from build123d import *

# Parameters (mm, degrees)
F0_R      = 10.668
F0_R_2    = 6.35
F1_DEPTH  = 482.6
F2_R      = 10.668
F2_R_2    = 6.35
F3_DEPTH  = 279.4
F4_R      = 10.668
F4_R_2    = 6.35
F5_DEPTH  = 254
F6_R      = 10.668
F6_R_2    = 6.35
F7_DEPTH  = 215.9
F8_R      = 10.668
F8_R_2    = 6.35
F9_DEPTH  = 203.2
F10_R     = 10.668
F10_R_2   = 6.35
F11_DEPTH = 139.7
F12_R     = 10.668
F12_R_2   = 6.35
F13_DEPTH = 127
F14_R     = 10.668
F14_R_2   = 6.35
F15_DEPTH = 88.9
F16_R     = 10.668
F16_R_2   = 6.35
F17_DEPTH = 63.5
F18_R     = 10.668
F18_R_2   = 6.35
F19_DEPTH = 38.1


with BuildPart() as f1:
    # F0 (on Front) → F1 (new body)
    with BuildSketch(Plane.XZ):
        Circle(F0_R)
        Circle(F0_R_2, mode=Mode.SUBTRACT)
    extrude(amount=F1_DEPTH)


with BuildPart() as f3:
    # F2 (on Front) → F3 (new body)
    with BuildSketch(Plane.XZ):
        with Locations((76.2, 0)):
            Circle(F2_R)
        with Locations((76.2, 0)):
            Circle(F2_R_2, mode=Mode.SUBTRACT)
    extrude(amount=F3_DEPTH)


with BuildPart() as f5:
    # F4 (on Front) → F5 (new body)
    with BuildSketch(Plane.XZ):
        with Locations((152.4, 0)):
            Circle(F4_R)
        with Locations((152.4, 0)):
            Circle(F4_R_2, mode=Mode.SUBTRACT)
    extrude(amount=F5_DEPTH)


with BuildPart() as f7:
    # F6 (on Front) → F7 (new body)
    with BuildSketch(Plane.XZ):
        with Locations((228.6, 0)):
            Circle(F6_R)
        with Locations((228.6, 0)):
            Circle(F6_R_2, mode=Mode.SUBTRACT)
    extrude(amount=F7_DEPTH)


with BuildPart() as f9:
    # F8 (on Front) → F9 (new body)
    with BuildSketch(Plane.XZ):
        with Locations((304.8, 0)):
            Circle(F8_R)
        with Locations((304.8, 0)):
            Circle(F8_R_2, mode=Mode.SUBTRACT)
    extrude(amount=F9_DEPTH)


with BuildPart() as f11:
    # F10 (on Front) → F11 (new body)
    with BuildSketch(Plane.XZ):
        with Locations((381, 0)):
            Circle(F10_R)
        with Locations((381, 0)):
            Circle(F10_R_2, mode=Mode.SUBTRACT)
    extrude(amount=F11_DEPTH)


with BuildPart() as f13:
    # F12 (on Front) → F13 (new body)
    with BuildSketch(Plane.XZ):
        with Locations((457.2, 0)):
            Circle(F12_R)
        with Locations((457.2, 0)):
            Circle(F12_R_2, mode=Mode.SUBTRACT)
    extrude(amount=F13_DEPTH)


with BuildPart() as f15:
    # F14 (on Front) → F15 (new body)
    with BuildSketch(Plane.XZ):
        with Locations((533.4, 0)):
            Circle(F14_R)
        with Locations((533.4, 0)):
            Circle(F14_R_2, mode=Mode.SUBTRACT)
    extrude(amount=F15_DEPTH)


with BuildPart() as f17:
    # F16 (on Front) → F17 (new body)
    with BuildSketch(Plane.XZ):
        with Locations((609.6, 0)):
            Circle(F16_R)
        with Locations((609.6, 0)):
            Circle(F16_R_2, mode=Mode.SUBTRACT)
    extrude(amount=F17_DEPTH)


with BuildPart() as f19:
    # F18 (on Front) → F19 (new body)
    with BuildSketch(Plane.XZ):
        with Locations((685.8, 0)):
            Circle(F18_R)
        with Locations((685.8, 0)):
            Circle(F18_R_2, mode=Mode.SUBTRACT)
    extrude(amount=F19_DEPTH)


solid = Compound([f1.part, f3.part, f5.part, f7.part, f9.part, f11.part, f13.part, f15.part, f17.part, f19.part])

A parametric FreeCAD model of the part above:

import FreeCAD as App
import Part
import Sketcher
from FreeCAD import Vector
Q = App.Units.Quantity

doc = App.newDocument("Part")
params = doc.addObject("Spreadsheet::Sheet", "Params")
for row, (alias, value) in enumerate([
    ("sketch1_diameter", "0.5 in"),
    ("sketch1_diameter2", "0.84 in"),
    ("pad1_length", "19 in"),
    ("sketch2_diameter", "0.5 in"),
    ("sketch2_diameter2", "0.84 in"),
    ("pad2_length", "11 in"),
    ("sketch3_diameter", "0.5 in"),
    ("sketch3_diameter2", "0.84 in"),
    ("pad3_length", "10 in"),
    ("sketch4_diameter", "0.5 in"),
    ("sketch4_diameter2", "0.84 in"),
    ("pad4_length", "8.5 in"),
    ("sketch5_diameter", "0.5 in"),
    ("sketch5_diameter2", "0.84 in"),
    ("pad5_length", "8 in"),
    ("sketch6_diameter", "0.5 in"),
    ("sketch6_diameter2", "0.84 in"),
    ("pad6_length", "5.5 in"),
    ("sketch7_diameter", "0.5 in"),
    ("sketch7_diameter2", "0.84 in"),
    ("pad7_length", "5 in"),
    ("sketch8_diameter", "0.5 in"),
    ("sketch8_diameter2", "0.84 in"),
    ("pad8_length", "3.5 in"),
    ("sketch9_diameter", "0.5 in"),
    ("sketch9_diameter2", "0.84 in"),
    ("pad9_length", "2.5 in"),
    ("sketch10_diameter", "0.5 in"),
    ("sketch10_diameter2", "0.84 in"),
    ("pad10_length", "1.5 in"),
], start=1):
    params.set(f"A{row}", alias)
    params.set(f"B{row}", "=" + value)
    params.setAlias(f"B{row}", alias)

body = doc.addObject("PartDesign::Body", "Body")

# Sketch on XZ plane
sketch1 = doc.addObject("Sketcher::SketchObject", "Sketch")
body.addObject(sketch1)
sketch1.AttachmentSupport = (doc.XZ_Plane, [""])
sketch1.MapMode = "FlatFace"
sketch1.addGeometry([
    Part.Circle(Vector(0, 0, 0), Vector(0, 0, 1), 11),
    Part.Circle(Vector(0, 0, 0), Vector(0, 0, 1), 6),
], False)
sketch1.addConstraint([
    Sketcher.Constraint("Coincident", 0, 3, -1, 1),
    Sketcher.Constraint("Coincident", 1, 3, -1, 1),
    Sketcher.Constraint("Diameter", 1, Q("0.5 in")),
    Sketcher.Constraint("Diameter", 0, Q("0.84 in")),
])
sketch1.setExpression("Constraints[2]", "Params.sketch1_diameter")
sketch1.setExpression("Constraints[3]", "Params.sketch1_diameter2")
pad1 = doc.addObject("PartDesign::Pad", "Pad")
body.addObject(pad1)
pad1.Profile = sketch1
pad1.setExpression("Length", "Params.pad1_length")
body2 = doc.addObject("PartDesign::Body", "Body001")

# Sketch on XZ plane
sketch2 = doc.addObject("Sketcher::SketchObject", "Sketch001")
body2.addObject(sketch2)
sketch2.AttachmentSupport = (doc.getObject("XZ_Plane001"), [""])
sketch2.MapMode = "FlatFace"
sketch2.addGeometry([
    Part.Circle(Vector(76, 0, 0), Vector(0, 0, 1), 11),
    Part.Circle(Vector(76, 0, 0), Vector(0, 0, 1), 6),
], False)
sketch2.addConstraint([
    Sketcher.Constraint("Coincident", 1, 3, 0, 3),
    Sketcher.Constraint("PointOnObject", 0, 3, -1),
    Sketcher.Constraint("Diameter", 1, Q("0.5 in")),
    Sketcher.Constraint("Diameter", 0, Q("0.84 in")),
    Sketcher.Constraint("DistanceX", -1, 1, 0, 3, Q("3 in")),
])
sketch2.setExpression("Constraints[2]", "Params.sketch2_diameter")
sketch2.setExpression("Constraints[3]", "Params.sketch2_diameter2")
pad2 = doc.addObject("PartDesign::Pad", "Pad001")
body2.addObject(pad2)
pad2.Profile = sketch2
pad2.setExpression("Length", "Params.pad2_length")
body3 = doc.addObject("PartDesign::Body", "Body002")

# Sketch on XZ plane
sketch3 = doc.addObject("Sketcher::SketchObject", "Sketch002")
body3.addObject(sketch3)
sketch3.AttachmentSupport = (doc.getObject("XZ_Plane002"), [""])
sketch3.MapMode = "FlatFace"
sketch3.addGeometry([
    Part.Circle(Vector(152, 0, 0), Vector(0, 0, 1), 11),
    Part.Circle(Vector(152, 0, 0), Vector(0, 0, 1), 6),
], False)
sketch3.addConstraint([
    Sketcher.Constraint("Coincident", 1, 3, 0, 3),
    Sketcher.Constraint("PointOnObject", 0, 3, -1),
    Sketcher.Constraint("Diameter", 1, Q("0.5 in")),
    Sketcher.Constraint("Diameter", 0, Q("0.84 in")),
    Sketcher.Constraint("DistanceX", -1, 1, 0, 3, Q("6 in")),
])
sketch3.setExpression("Constraints[2]", "Params.sketch3_diameter")
sketch3.setExpression("Constraints[3]", "Params.sketch3_diameter2")
pad3 = doc.addObject("PartDesign::Pad", "Pad002")
body3.addObject(pad3)
pad3.Profile = sketch3
pad3.setExpression("Length", "Params.pad3_length")
body4 = doc.addObject("PartDesign::Body", "Body003")

# Sketch on XZ plane
sketch4 = doc.addObject("Sketcher::SketchObject", "Sketch003")
body4.addObject(sketch4)
sketch4.AttachmentSupport = (doc.getObject("XZ_Plane003"), [""])
sketch4.MapMode = "FlatFace"
sketch4.addGeometry([
    Part.Circle(Vector(229, 0, 0), Vector(0, 0, 1), 11),
    Part.Circle(Vector(229, 0, 0), Vector(0, 0, 1), 6),
], False)
sketch4.addConstraint([
    Sketcher.Constraint("Coincident", 1, 3, 0, 3),
    Sketcher.Constraint("PointOnObject", 0, 3, -1),
    Sketcher.Constraint("Diameter", 1, Q("0.5 in")),
    Sketcher.Constraint("Diameter", 0, Q("0.84 in")),
    Sketcher.Constraint("DistanceX", -1, 1, 0, 3, Q("9 in")),
])
sketch4.setExpression("Constraints[2]", "Params.sketch4_diameter")
sketch4.setExpression("Constraints[3]", "Params.sketch4_diameter2")
pad4 = doc.addObject("PartDesign::Pad", "Pad003")
body4.addObject(pad4)
pad4.Profile = sketch4
pad4.setExpression("Length", "Params.pad4_length")
body5 = doc.addObject("PartDesign::Body", "Body004")

# Sketch on XZ plane
sketch5 = doc.addObject("Sketcher::SketchObject", "Sketch004")
body5.addObject(sketch5)
sketch5.AttachmentSupport = (doc.getObject("XZ_Plane004"), [""])
sketch5.MapMode = "FlatFace"
sketch5.addGeometry([
    Part.Circle(Vector(305, 0, 0), Vector(0, 0, 1), 11),
    Part.Circle(Vector(305, 0, 0), Vector(0, 0, 1), 6),
], False)
sketch5.addConstraint([
    Sketcher.Constraint("Coincident", 1, 3, 0, 3),
    Sketcher.Constraint("PointOnObject", 0, 3, -1),
    Sketcher.Constraint("Diameter", 1, Q("0.5 in")),
    Sketcher.Constraint("Diameter", 0, Q("0.84 in")),
    Sketcher.Constraint("DistanceX", -1, 1, 0, 3, Q("12 in")),
])
sketch5.setExpression("Constraints[2]", "Params.sketch5_diameter")
sketch5.setExpression("Constraints[3]", "Params.sketch5_diameter2")
pad5 = doc.addObject("PartDesign::Pad", "Pad004")
body5.addObject(pad5)
pad5.Profile = sketch5
pad5.setExpression("Length", "Params.pad5_length")
body6 = doc.addObject("PartDesign::Body", "Body005")

# Sketch on XZ plane
sketch6 = doc.addObject("Sketcher::SketchObject", "Sketch005")
body6.addObject(sketch6)
sketch6.AttachmentSupport = (doc.getObject("XZ_Plane005"), [""])
sketch6.MapMode = "FlatFace"
sketch6.addGeometry([
    Part.Circle(Vector(381, 0, 0), Vector(0, 0, 1), 11),
    Part.Circle(Vector(381, 0, 0), Vector(0, 0, 1), 6),
], False)
sketch6.addConstraint([
    Sketcher.Constraint("Coincident", 1, 3, 0, 3),
    Sketcher.Constraint("PointOnObject", 0, 3, -1),
    Sketcher.Constraint("Diameter", 1, Q("0.5 in")),
    Sketcher.Constraint("Diameter", 0, Q("0.84 in")),
    Sketcher.Constraint("DistanceX", -1, 1, 0, 3, Q("15 in")),
])
sketch6.setExpression("Constraints[2]", "Params.sketch6_diameter")
sketch6.setExpression("Constraints[3]", "Params.sketch6_diameter2")
pad6 = doc.addObject("PartDesign::Pad", "Pad005")
body6.addObject(pad6)
pad6.Profile = sketch6
pad6.setExpression("Length", "Params.pad6_length")
body7 = doc.addObject("PartDesign::Body", "Body006")

# Sketch on XZ plane
sketch7 = doc.addObject("Sketcher::SketchObject", "Sketch006")
body7.addObject(sketch7)
sketch7.AttachmentSupport = (doc.getObject("XZ_Plane006"), [""])
sketch7.MapMode = "FlatFace"
sketch7.addGeometry([
    Part.Circle(Vector(457, 0, 0), Vector(0, 0, 1), 11),
    Part.Circle(Vector(457, 0, 0), Vector(0, 0, 1), 6),
], False)
sketch7.addConstraint([
    Sketcher.Constraint("Coincident", 1, 3, 0, 3),
    Sketcher.Constraint("PointOnObject", 0, 3, -1),
    Sketcher.Constraint("Diameter", 1, Q("0.5 in")),
    Sketcher.Constraint("Diameter", 0, Q("0.84 in")),
    Sketcher.Constraint("DistanceX", -1, 1, 0, 3, Q("18 in")),
])
sketch7.setExpression("Constraints[2]", "Params.sketch7_diameter")
sketch7.setExpression("Constraints[3]", "Params.sketch7_diameter2")
pad7 = doc.addObject("PartDesign::Pad", "Pad006")
body7.addObject(pad7)
pad7.Profile = sketch7
pad7.setExpression("Length", "Params.pad7_length")
body8 = doc.addObject("PartDesign::Body", "Body007")

# Sketch on XZ plane
sketch8 = doc.addObject("Sketcher::SketchObject", "Sketch007")
body8.addObject(sketch8)
sketch8.AttachmentSupport = (doc.getObject("XZ_Plane007"), [""])
sketch8.MapMode = "FlatFace"
sketch8.addGeometry([
    Part.Circle(Vector(533, 0, 0), Vector(0, 0, 1), 11),
    Part.Circle(Vector(533, 0, 0), Vector(0, 0, 1), 6),
], False)
sketch8.addConstraint([
    Sketcher.Constraint("Coincident", 1, 3, 0, 3),
    Sketcher.Constraint("PointOnObject", 0, 3, -1),
    Sketcher.Constraint("Diameter", 1, Q("0.5 in")),
    Sketcher.Constraint("Diameter", 0, Q("0.84 in")),
    Sketcher.Constraint("DistanceX", -1, 1, 0, 3, Q("21 in")),
])
sketch8.setExpression("Constraints[2]", "Params.sketch8_diameter")
sketch8.setExpression("Constraints[3]", "Params.sketch8_diameter2")
pad8 = doc.addObject("PartDesign::Pad", "Pad007")
body8.addObject(pad8)
pad8.Profile = sketch8
pad8.setExpression("Length", "Params.pad8_length")
body9 = doc.addObject("PartDesign::Body", "Body008")

# Sketch on XZ plane
sketch9 = doc.addObject("Sketcher::SketchObject", "Sketch008")
body9.addObject(sketch9)
sketch9.AttachmentSupport = (doc.getObject("XZ_Plane008"), [""])
sketch9.MapMode = "FlatFace"
sketch9.addGeometry([
    Part.Circle(Vector(610, 0, 0), Vector(0, 0, 1), 11),
    Part.Circle(Vector(610, 0, 0), Vector(0, 0, 1), 6),
], False)
sketch9.addConstraint([
    Sketcher.Constraint("Coincident", 1, 3, 0, 3),
    Sketcher.Constraint("PointOnObject", 0, 3, -1),
    Sketcher.Constraint("Diameter", 1, Q("0.5 in")),
    Sketcher.Constraint("Diameter", 0, Q("0.84 in")),
    Sketcher.Constraint("DistanceX", -1, 1, 0, 3, Q("24 in")),
])
sketch9.setExpression("Constraints[2]", "Params.sketch9_diameter")
sketch9.setExpression("Constraints[3]", "Params.sketch9_diameter2")
pad9 = doc.addObject("PartDesign::Pad", "Pad008")
body9.addObject(pad9)
pad9.Profile = sketch9
pad9.setExpression("Length", "Params.pad9_length")
body10 = doc.addObject("PartDesign::Body", "Body009")

# Sketch on XZ plane
sketch10 = doc.addObject("Sketcher::SketchObject", "Sketch009")
body10.addObject(sketch10)
sketch10.AttachmentSupport = (doc.getObject("XZ_Plane009"), [""])
sketch10.MapMode = "FlatFace"
sketch10.addGeometry([
    Part.Circle(Vector(686, 0, 0), Vector(0, 0, 1), 11),
    Part.Circle(Vector(686, 0, 0), Vector(0, 0, 1), 6),
], False)
sketch10.addConstraint([
    Sketcher.Constraint("Coincident", 1, 3, 0, 3),
    Sketcher.Constraint("PointOnObject", 0, 3, -1),
    Sketcher.Constraint("Diameter", 1, Q("0.5 in")),
    Sketcher.Constraint("Diameter", 0, Q("0.84 in")),
    Sketcher.Constraint("DistanceX", -1, 1, 0, 3, Q("27 in")),
])
sketch10.setExpression("Constraints[2]", "Params.sketch10_diameter")
sketch10.setExpression("Constraints[3]", "Params.sketch10_diameter2")
pad10 = doc.addObject("PartDesign::Pad", "Pad009")
body10.addObject(pad10)
pad10.Profile = sketch10
pad10.setExpression("Length", "Params.pad10_length")

doc.recompute()
